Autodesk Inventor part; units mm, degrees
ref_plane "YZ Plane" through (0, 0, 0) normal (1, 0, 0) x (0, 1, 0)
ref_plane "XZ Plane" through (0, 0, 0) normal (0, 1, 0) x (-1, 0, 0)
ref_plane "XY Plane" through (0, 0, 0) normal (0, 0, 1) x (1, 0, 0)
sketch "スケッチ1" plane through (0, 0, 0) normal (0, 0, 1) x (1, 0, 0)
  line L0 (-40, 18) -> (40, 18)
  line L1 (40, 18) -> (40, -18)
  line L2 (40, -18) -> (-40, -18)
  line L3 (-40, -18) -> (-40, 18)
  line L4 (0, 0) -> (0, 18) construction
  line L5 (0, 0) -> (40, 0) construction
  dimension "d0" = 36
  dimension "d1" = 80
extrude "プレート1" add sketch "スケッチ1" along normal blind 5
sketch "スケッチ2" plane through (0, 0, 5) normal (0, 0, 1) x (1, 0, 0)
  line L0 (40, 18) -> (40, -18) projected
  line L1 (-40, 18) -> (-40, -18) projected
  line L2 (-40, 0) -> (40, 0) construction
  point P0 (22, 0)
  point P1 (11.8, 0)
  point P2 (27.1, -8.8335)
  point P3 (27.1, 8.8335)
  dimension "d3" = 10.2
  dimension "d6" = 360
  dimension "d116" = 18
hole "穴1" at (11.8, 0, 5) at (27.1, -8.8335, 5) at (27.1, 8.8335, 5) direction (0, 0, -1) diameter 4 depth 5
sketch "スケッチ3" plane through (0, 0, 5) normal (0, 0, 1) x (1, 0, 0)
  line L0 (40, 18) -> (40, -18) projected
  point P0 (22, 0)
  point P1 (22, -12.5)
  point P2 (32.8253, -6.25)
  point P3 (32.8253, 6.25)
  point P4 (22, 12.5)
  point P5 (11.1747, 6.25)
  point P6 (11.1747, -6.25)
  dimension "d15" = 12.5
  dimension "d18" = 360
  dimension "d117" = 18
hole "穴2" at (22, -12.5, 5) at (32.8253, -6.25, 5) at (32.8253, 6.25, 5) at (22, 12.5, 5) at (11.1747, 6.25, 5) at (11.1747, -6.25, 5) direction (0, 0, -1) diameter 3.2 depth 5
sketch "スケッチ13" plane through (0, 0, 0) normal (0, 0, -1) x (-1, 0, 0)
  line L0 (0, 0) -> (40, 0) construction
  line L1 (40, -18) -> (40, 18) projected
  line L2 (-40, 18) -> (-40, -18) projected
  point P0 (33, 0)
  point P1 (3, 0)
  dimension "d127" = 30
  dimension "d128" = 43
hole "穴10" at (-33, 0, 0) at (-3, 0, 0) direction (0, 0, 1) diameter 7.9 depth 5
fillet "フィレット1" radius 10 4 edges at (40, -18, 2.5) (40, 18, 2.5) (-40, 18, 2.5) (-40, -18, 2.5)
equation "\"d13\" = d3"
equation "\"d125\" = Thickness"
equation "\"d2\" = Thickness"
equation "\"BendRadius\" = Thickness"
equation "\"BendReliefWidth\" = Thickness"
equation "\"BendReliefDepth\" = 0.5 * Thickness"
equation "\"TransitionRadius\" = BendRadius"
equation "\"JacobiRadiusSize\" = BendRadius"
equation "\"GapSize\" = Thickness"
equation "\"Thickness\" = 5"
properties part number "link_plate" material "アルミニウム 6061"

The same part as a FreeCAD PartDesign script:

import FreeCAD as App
import Part
import Sketcher
from FreeCAD import Vector
Q = App.Units.Quantity


def edges_at(feature, points):
    """Names of the edges that pass closest to the given points."""
    edges = feature.Shape.Edges
    near = lambda p: min(range(len(edges)), key=lambda i: edges[i].distToShape(Part.Vertex(*p))[0])
    return sorted({f"Edge{near(p) + 1}" for p in points})


def add_polygon(sketch, points):
    """Adds a closed chain of lines whose ends are joined by coincident constraints."""
    first, n = sketch.GeometryCount, len(points)
    for a, b in zip(points, points[1:] + points[:1]):
        sketch.addGeometry(Part.LineSegment(App.Vector(*a, 0), App.Vector(*b, 0)), False)
    for i in range(n):
        sketch.addConstraint(Sketcher.Constraint("Coincident", first + i, 2, first + (i + 1) % n, 1))

doc = App.newDocument("Part")
params = doc.addObject("Spreadsheet::Sheet", "Params")
for row, (alias, value) in enumerate([
    ("sketch1_width", "80 mm"),
    ("sketch1_height", "36 mm"),
    ("pad1_length", "5 mm"),
    ("sketch2_diameter", "4 mm"),
    ("hole_diameter", "4 mm"),
    ("hole_depth", "5 mm"),
    ("sketch3_diameter", "3.2 mm"),
    ("hole2_diameter", "3.2 mm"),
    ("hole2_depth", "5 mm"),
    ("sketch4_diameter", "7.9 mm"),
    ("hole3_diameter", "7.9 mm"),
    ("hole3_depth", "5 mm"),
    ("fillet_radius", "10 mm"),
], start=1):
    params.set(f"A{row}", alias)
    params.set(f"B{row}", "=" + value)
    params.setAlias(f"B{row}", alias)

body = doc.addObject("PartDesign::Body", "Body")

# Sketch on XY plane
sketch1 = body.newObject("Sketcher::SketchObject", "Sketch")
sketch1.AttachmentSupport = (doc.getObject("XY_Plane"), [""])
sketch1.MapMode = "FlatFace"
add_polygon(sketch1, [(40, 18), (-40, 18), (-40, -18), (40, -18)])  # lines 0-3
sketch1.addConstraint([
    Sketcher.Constraint("Horizontal", 0),
    Sketcher.Constraint("Vertical", 1),
    Sketcher.Constraint("Horizontal", 2),
    Sketcher.Constraint("Vertical", 3),
    Sketcher.Constraint("Symmetric", 0, 2, 2, 2, -1, 1),
    Sketcher.Constraint("DistanceX", 0, 2, 0, 1, Q("80 mm")),
    Sketcher.Constraint("DistanceY", 1, 2, 1, 1, Q("36 mm")),
])
sketch1.setExpression("Constraints[9]", "Params.sketch1_width")
sketch1.setExpression("Constraints[10]", "Params.sketch1_height")
pad1 = body.newObject("PartDesign::Pad", "Pad")
pad1.Profile = sketch1
pad1.setExpression("Length", "Params.pad1_length")

# Sketch on XY plane
sketch2 = body.newObject("Sketcher::SketchObject", "Sketch001")
sketch2.AttachmentSupport = (doc.getObject("XY_Plane"), [""])
sketch2.MapMode = "FlatFace"
sketch2.AttachmentOffset = App.Placement(Vector(0, 0, 5), App.Rotation())
sketch2.addGeometry([
    Part.Circle(Vector(11.8, 0, 0), Vector(0, 0, 1), 2),
    Part.Circle(Vector(27.1, -8.8, 0), Vector(0, 0, 1), 2),
    Part.Circle(Vector(27.1, 8.8, 0), Vector(0, 0, 1), 2),
], False)
sketch2.addConstraint([
    Sketcher.Constraint("Equal", 0, 1),
    Sketcher.Constraint("Equal", 1, 2),
    Sketcher.Constraint("Symmetric", 1, 3, 2, 3, -1),
    Sketcher.Constraint("PointOnObject", 0, 3, -1),
    Sketcher.Constraint("Diameter", 0, Q("4 mm")),
    Sketcher.Constraint("DistanceX", -1, 1, 0, 3, Q("11.8 mm")),
    Sketcher.Constraint("DistanceX", -1, 1, 1, 3, Q("27.1 mm")),
    Sketcher.Constraint("DistanceY", 1, 3, 2, 3, Q("17.667 mm")),
])
sketch2.setExpression("Constraints[4]", "Params.sketch2_diameter")
doc.recompute()
hole = body.newObject("PartDesign::Hole", "Hole")
hole.Profile = sketch2
hole.ThreadType = "None"
hole.setExpression("Diameter", "Params.hole_diameter")
hole.DepthType = "Dimension"
hole.setExpression("Depth", "Params.hole_depth")
hole.DrillPoint = "Flat"

# Sketch on XY plane
sketch3 = body.newObject("Sketcher::SketchObject", "Sketch002")
sketch3.AttachmentSupport = (doc.getObject("XY_Plane"), [""])
sketch3.MapMode = "FlatFace"
sketch3.AttachmentOffset = App.Placement(Vector(0, 0, 5), App.Rotation())
sketch3.addGeometry([
    Part.Circle(Vector(22, -12.5, 0), Vector(0, 0, 1), 1.6),  # 0
    Part.Circle(Vector(32.8, -6.2, 0), Vector(0, 0, 1), 1.6),  # 1
    Part.Circle(Vector(32.8, 6.2, 0), Vector(0, 0, 1), 1.6),  # 2
    Part.Circle(Vector(22, 12.5, 0), Vector(0, 0, 1), 1.6),  # 3
    Part.Circle(Vector(11.2, 6.2, 0), Vector(0, 0, 1), 1.6),  # 4
    Part.Circle(Vector(11.2, -6.2, 0), Vector(0, 0, 1), 1.6),  # 5
], False)
sketch3.addConstraint([
    Sketcher.Constraint("Equal", 0, 1),
    Sketcher.Constraint("Equal", 1, 2),
    Sketcher.Constraint("Equal", 2, 3),
    Sketcher.Constraint("Equal", 3, 4),
    Sketcher.Constraint("Equal", 4, 5),
    Sketcher.Constraint("Symmetric", 1, 3, 2, 3, -1),
    Sketcher.Constraint("Symmetric", 0, 3, 3, 3, -1),
    Sketcher.Constraint("Symmetric", 4, 3, 5, 3, -1),
    Sketcher.Constraint("Horizontal", 2, 3, 4, 3),
    Sketcher.Constraint("Diameter", 0, Q("3.2 mm")),
    Sketcher.Constraint("DistanceX", -1, 1, 0, 3, Q("22 mm")),
    Sketcher.Constraint("DistanceY", 0, 3, 3, 3, Q("25 mm")),
    Sketcher.Constraint("DistanceY", 1, 3, 2, 3, Q("12.5 mm")),
    Sketcher.Constraint("DistanceX", -1, 1, 1, 3, Q("32.8253 mm")),
    Sketcher.Constraint("DistanceX", -1, 1, 4, 3, Q("11.1747 mm")),
])
sketch3.setExpression("Constraints[9]", "Params.sketch3_diameter")
doc.recompute()
hole2 = body.newObject("PartDesign::Hole", "Hole001")
hole2.Profile = sketch3
hole2.ThreadType = "None"
hole2.setExpression("Diameter", "Params.hole2_diameter")
hole2.DepthType = "Dimension"
hole2.setExpression("Depth", "Params.hole2_depth")
hole2.DrillPoint = "Flat"

# Sketch on XY plane
sketch4 = body.newObject("Sketcher::SketchObject", "Sketch003")
sketch4.AttachmentSupport = (doc.getObject("XY_Plane"), [""])
sketch4.MapMode = "FlatFace"
sketch4.addGeometry([
    Part.Circle(Vector(-33, 0, 0), Vector(0, 0, 1), 4),
    Part.Circle(Vector(-3, 0, 0), Vector(0, 0, 1), 4),
], False)
sketch4.addConstraint([
    Sketcher.Constraint("Equal", 0, 1),
    Sketcher.Constraint("PointOnObject", 0, 3, -1),
    Sketcher.Constraint("PointOnObject", 1, 3, -1),
    Sketcher.Constraint("Diameter", 0, Q("7.9 mm")),
    Sketcher.Constraint("DistanceX", 0, 3, -1, 1, Q("33 mm")),
    Sketcher.Constraint("DistanceX", 1, 3, -1, 1, Q("3 mm")),
])
sketch4.setExpression("Constraints[3]", "Params.sketch4_diameter")
doc.recompute()
hole3 = body.newObject("PartDesign::Hole", "Hole002")
hole3.Profile = sketch4
hole3.ThreadType = "None"
hole3.setExpression("Diameter", "Params.hole3_diameter")
hole3.DepthType = "Dimension"
hole3.setExpression("Depth", "Params.hole3_depth")
hole3.DrillPoint = "Flat"
hole3.Reversed = True
doc.recompute()

fillet = body.newObject("PartDesign::Fillet", "Fillet")
fillet.Base = (hole3, edges_at(hole3, [
    (40, -18, 2.5),
    (40, 18, 2.5),
    (-40, 18, 2.5),
    (-40, -18, 2.5),
]))
fillet.setExpression("Radius", "Params.fillet_radius")

doc.recompute()
